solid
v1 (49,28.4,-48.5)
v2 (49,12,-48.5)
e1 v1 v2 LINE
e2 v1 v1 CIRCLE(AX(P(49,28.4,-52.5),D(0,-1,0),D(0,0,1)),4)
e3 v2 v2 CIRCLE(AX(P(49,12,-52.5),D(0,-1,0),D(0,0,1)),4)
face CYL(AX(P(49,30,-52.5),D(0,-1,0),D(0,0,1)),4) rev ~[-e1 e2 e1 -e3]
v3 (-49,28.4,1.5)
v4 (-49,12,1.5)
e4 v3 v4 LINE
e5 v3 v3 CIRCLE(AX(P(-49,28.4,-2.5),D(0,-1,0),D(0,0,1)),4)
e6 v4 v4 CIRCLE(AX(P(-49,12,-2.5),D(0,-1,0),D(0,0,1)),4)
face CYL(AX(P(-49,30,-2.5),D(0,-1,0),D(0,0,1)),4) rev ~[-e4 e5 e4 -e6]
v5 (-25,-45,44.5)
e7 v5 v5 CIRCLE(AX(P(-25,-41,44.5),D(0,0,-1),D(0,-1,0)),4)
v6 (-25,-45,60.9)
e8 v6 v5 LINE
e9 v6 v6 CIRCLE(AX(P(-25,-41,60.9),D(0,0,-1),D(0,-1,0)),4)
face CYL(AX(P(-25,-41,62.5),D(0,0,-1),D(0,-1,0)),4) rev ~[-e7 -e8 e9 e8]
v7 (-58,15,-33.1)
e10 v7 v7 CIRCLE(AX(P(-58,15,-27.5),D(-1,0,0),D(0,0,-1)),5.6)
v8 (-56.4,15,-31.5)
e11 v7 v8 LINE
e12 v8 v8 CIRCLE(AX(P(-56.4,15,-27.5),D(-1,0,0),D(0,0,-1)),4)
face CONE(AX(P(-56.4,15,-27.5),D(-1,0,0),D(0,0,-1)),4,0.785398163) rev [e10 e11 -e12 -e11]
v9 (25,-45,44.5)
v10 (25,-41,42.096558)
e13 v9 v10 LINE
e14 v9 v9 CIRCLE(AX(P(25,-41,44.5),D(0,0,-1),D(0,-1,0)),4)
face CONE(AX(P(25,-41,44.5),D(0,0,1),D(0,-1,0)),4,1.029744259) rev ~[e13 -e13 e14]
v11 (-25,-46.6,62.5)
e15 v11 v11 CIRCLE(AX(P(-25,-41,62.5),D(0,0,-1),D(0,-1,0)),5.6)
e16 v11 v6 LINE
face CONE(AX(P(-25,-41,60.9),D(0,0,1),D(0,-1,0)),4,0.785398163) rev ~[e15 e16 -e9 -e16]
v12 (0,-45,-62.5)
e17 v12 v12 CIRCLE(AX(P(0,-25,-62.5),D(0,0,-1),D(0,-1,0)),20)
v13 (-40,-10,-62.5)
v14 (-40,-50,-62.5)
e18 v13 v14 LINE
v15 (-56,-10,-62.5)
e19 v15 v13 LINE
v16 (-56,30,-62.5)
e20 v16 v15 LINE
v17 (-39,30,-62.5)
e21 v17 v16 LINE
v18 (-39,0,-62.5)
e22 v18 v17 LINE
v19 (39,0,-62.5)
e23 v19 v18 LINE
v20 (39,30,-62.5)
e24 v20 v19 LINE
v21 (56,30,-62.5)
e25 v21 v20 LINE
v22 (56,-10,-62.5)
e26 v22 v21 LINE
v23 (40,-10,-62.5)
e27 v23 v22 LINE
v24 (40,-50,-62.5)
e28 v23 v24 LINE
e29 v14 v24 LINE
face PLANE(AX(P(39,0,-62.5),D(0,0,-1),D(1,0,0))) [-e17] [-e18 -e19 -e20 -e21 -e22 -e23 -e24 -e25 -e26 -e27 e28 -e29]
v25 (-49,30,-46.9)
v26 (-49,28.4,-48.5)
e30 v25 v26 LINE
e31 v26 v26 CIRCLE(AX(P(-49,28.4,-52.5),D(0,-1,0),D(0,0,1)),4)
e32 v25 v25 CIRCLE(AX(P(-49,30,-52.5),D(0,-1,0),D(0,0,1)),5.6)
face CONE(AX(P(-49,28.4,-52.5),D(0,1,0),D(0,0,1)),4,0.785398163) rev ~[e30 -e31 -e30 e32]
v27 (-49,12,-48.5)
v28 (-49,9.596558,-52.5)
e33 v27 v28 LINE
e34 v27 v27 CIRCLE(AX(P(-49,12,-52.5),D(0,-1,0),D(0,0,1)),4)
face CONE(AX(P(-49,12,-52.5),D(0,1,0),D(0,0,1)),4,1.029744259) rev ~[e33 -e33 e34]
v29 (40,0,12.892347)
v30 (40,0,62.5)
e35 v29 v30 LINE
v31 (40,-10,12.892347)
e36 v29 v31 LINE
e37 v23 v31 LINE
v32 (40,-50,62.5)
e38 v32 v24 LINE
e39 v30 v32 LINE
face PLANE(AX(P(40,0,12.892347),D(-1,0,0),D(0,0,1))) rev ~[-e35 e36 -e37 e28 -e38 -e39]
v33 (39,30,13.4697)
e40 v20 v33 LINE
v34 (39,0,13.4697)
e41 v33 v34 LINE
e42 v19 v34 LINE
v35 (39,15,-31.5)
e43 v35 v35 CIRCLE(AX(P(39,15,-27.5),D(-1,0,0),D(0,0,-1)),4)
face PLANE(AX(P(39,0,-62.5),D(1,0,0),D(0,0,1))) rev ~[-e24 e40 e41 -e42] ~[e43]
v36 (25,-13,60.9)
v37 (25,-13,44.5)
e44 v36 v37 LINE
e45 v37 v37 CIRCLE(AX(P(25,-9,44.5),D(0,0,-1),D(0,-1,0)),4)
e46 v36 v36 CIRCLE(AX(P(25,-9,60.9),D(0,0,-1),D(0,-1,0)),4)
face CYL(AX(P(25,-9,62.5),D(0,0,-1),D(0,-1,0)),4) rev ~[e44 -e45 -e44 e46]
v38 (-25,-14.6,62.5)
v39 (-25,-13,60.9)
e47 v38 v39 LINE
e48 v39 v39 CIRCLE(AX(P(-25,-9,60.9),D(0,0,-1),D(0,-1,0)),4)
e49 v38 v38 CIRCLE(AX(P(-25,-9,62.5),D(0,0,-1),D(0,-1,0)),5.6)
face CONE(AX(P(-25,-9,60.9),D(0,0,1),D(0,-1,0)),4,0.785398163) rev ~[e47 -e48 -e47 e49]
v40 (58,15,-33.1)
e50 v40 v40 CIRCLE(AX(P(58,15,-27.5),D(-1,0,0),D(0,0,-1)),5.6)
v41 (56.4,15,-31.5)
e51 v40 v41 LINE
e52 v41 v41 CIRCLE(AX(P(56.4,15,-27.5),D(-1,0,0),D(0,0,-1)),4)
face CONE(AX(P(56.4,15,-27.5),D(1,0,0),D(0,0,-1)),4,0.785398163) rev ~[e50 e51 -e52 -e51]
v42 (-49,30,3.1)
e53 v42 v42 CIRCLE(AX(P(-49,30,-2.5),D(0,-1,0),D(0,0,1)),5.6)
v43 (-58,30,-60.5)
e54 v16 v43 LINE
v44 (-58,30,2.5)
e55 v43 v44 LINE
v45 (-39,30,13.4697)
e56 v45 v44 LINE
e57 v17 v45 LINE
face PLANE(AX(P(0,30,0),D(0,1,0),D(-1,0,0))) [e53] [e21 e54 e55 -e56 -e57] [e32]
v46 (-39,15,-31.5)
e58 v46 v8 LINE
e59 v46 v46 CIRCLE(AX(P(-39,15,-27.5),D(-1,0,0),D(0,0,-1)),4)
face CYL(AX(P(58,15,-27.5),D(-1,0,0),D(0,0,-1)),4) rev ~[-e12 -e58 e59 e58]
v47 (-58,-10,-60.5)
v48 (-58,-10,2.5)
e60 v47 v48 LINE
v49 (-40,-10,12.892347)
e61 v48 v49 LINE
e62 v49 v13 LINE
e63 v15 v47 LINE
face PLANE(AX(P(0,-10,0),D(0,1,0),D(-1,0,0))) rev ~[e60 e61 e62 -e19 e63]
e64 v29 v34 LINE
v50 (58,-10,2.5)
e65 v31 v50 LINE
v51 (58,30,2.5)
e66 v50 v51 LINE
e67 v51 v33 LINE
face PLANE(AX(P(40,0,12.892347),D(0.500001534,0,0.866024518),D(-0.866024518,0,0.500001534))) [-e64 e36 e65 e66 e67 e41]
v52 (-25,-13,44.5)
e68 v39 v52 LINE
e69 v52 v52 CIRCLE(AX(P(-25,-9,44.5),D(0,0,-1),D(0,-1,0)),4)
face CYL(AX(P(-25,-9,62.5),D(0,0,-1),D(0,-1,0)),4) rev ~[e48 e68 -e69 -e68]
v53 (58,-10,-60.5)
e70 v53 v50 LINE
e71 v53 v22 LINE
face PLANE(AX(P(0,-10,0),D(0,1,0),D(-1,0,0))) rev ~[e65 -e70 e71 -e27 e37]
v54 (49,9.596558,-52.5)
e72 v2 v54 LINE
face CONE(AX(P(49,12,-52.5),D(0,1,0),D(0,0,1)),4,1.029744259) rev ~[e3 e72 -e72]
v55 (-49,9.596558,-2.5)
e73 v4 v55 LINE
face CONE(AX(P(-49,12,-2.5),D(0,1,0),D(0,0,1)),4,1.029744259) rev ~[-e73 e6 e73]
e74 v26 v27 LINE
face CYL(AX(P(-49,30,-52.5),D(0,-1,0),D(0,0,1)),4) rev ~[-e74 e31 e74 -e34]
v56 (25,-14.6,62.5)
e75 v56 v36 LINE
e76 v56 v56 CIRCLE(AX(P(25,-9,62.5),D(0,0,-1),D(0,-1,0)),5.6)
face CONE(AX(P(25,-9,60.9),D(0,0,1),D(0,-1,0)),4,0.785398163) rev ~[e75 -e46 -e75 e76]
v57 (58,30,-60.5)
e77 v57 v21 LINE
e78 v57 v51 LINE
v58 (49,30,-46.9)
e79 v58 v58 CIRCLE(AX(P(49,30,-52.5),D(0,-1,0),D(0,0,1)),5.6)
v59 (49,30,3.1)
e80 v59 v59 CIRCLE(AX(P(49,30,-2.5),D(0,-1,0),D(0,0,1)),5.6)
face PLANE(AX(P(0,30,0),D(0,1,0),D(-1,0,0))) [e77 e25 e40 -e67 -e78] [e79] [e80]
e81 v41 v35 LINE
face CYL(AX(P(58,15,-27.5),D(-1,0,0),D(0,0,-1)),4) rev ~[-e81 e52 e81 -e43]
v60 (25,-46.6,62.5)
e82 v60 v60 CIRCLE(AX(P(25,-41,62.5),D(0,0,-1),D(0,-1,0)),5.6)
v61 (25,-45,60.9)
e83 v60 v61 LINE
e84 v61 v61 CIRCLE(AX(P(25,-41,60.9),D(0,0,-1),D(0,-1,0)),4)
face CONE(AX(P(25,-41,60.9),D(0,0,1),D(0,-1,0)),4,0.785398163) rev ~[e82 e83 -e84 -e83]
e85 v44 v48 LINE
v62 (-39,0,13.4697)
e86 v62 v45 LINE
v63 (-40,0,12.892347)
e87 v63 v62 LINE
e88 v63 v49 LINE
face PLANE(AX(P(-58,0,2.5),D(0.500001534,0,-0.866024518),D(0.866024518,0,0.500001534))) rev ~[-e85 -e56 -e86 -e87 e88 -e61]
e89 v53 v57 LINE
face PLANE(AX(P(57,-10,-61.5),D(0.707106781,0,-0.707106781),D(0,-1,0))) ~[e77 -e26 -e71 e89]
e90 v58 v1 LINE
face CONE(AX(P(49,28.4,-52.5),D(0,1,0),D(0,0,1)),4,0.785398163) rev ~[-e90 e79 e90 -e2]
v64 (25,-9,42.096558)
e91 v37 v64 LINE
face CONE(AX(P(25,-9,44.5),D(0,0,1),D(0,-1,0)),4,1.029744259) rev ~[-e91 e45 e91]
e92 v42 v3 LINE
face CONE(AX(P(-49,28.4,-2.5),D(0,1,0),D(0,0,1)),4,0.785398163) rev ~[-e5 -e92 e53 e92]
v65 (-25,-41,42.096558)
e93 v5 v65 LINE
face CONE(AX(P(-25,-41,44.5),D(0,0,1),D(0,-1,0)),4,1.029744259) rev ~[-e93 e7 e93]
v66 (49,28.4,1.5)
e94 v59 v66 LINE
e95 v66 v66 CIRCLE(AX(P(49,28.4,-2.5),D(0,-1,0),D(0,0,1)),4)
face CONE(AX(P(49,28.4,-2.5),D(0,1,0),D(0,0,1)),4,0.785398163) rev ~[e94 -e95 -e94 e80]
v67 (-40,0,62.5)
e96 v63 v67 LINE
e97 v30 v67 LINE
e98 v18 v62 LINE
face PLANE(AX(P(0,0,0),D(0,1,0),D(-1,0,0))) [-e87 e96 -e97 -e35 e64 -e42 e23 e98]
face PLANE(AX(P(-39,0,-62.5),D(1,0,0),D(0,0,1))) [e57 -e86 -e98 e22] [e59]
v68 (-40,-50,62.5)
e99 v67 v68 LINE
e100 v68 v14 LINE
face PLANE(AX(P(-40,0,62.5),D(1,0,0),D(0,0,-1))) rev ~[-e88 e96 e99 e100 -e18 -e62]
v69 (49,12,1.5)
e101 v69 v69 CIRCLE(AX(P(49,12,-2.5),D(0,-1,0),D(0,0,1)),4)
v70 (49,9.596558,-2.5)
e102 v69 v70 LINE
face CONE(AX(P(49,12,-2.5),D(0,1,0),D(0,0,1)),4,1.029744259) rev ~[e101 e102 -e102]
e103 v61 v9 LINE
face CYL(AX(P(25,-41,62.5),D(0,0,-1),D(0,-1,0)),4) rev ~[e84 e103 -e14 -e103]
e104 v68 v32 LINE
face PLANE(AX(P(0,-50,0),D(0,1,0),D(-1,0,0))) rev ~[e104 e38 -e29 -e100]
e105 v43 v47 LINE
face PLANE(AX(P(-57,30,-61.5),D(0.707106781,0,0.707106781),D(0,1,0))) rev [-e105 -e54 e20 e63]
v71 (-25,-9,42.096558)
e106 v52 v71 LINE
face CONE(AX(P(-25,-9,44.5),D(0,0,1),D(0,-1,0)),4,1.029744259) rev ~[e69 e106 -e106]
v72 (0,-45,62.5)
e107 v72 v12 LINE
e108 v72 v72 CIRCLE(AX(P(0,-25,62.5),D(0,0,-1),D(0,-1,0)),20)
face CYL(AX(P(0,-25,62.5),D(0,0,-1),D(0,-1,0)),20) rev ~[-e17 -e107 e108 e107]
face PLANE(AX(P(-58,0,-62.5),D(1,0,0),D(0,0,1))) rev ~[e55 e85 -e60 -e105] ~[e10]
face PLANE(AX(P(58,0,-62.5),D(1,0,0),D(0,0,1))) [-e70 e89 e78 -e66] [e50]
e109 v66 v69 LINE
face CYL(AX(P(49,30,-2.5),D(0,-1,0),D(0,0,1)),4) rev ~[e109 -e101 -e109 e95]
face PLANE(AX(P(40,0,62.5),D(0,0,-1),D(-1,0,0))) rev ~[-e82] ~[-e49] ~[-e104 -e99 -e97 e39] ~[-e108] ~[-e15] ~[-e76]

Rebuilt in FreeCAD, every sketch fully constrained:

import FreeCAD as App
import Part
import Sketcher
Q = App.Units.Quantity


def edges_at(feature, points):
    """Names of the edges that pass closest to the given points."""
    edges = feature.Shape.Edges
    near = lambda p: min(range(len(edges)), key=lambda i: edges[i].distToShape(Part.Vertex(*p))[0])
    return sorted({f"Edge{near(p) + 1}" for p in points})


def add_polygon(sketch, points):
    """Adds a closed chain of lines whose ends are joined by coincident constraints."""
    first, n = sketch.GeometryCount, len(points)
    for a, b in zip(points, points[1:] + points[:1]):
        sketch.addGeometry(Part.LineSegment(App.Vector(*a, 0), App.Vector(*b, 0)), False)
    for i in range(n):
        sketch.addConstraint(Sketcher.Constraint("Coincident", first + i, 2, first + (i + 1) % n, 1))

doc = App.newDocument("Part")
body = doc.addObject("PartDesign::Body", "Body")
body.AllowCompound = True

# Sketch on XZ plane
sketch1 = body.newObject("Sketcher::SketchObject", "Sketch")
sketch1.AttachmentSupport = (doc.getObject("XZ_Plane"), [""])
sketch1.MapMode = "FlatFace"
add_polygon(sketch1, [(39, 13), (58, 2), (58, -62), (39, -62)])  # lines 0-3
add_polygon(sketch1, [(-58, 2), (-39, 13), (-39, -62), (-58, -62)])  # lines 4-7
sketch1.addConstraint(Sketcher.Constraint("Vertical", 1))
sketch1.addConstraint(Sketcher.Constraint("Horizontal", 2))
sketch1.addConstraint(Sketcher.Constraint("Vertical", 3))
sketch1.addConstraint(Sketcher.Constraint("Vertical", 5))
sketch1.addConstraint(Sketcher.Constraint("Horizontal", 6))
sketch1.addConstraint(Sketcher.Constraint("Vertical", 7))
sketch1.addConstraint(Sketcher.Constraint("Symmetric", 3, 2, 4, 2, -2))
sketch1.addConstraint(Sketcher.Constraint("Symmetric", 1, 2, 6, 2, -2))
sketch1.addConstraint(Sketcher.Constraint("Horizontal", 0, 2, 7, 2))
sketch1.addConstraint(Sketcher.Constraint("DistanceX", 2, 2, 2, 1, Q("19 mm")))
sketch1.addConstraint(Sketcher.Constraint("DistanceY", 1, 2, 1, 1, Q("65 mm")))
sketch1.addConstraint(Sketcher.Constraint("DistanceX", -1, 1, 0, 2, Q("58 mm")))
sketch1.addConstraint(Sketcher.Constraint("Angle", 0, Q("-30 deg")))
sketch1.addConstraint(Sketcher.Constraint("DistanceY", -1, 1, 0, 2, Q("2.5 mm")))
pad1 = body.newObject("PartDesign::Pad", "Pad")
pad1.Profile = sketch1
pad1.Type = "TwoLengths"
pad1.Length = 30
pad1.Length2 = 10
pad1.Reversed = True

# Sketch on XZ plane
sketch2 = body.newObject("Sketcher::SketchObject", "Sketch001")
sketch2.AttachmentSupport = (doc.getObject("XZ_Plane"), [""])
sketch2.MapMode = "FlatFace"
add_polygon(sketch2, [(40, 62), (40, -62), (-40, -62), (-40, 62)])  # lines 0-3
sketch2.addConstraint(Sketcher.Constraint("Vertical", 0))
sketch2.addConstraint(Sketcher.Constraint("Horizontal", 1))
sketch2.addConstraint(Sketcher.Constraint("Vertical", 2))
sketch2.addConstraint(Sketcher.Constraint("Horizontal", 3))
sketch2.addConstraint(Sketcher.Constraint("Symmetric", 0, 2, 2, 2, -1, 1))
sketch2.addConstraint(Sketcher.Constraint("DistanceX", 1, 2, 1, 1, Q("80 mm")))
sketch2.addConstraint(Sketcher.Constraint("DistanceY", 0, 2, 0, 1, Q("125 mm")))
pad2 = body.newObject("PartDesign::Pad", "Pad001")
pad2.Profile = sketch2
pad2.Length = 50

# Sketch on XZ plane
sketch3 = body.newObject("Sketcher::SketchObject", "Sketch002")
sketch3.AttachmentSupport = (doc.getObject("XZ_Plane"), [""])
sketch3.MapMode = "FlatFace"
sketch3.AttachmentOffset = App.Placement(App.Vector(0, 0, -30), App.Rotation())
sketch3.addGeometry(Part.Circle(App.Vector(49, -2.5, 0), App.Vector(0, 0, 1), 4), False)
sketch3.addGeometry(Part.Circle(App.Vector(49, -52.5, 0), App.Vector(0, 0, 1), 4), False)
sketch3.addConstraint(Sketcher.Constraint("Equal", 0, 1))
sketch3.addConstraint(Sketcher.Constraint("Vertical", 0, 3, 1, 3))
sketch3.addConstraint(Sketcher.Constraint("Diameter", 0, Q("8 mm")))
sketch3.addConstraint(Sketcher.Constraint("DistanceX", -1, 1, 0, 3, Q("49 mm")))
sketch3.addConstraint(Sketcher.Constraint("DistanceY", 1, 3, 0, 3, Q("50 mm")))
sketch3.addConstraint(Sketcher.Constraint("DistanceY", 0, 3, -1, 1, Q("2.5 mm")))
doc.recompute()
hole = body.newObject("PartDesign::Hole", "Hole")
hole.Profile = sketch3
hole.ThreadType = "None"
hole.Diameter = 8
hole.DepthType = "Dimension"
hole.Depth = 18
hole.DrillPoint = "Angled"
hole.DrillPointAngle = 118
hole.Reversed = True

# Sketch on XZ plane
sketch4 = body.newObject("Sketcher::SketchObject", "Sketch003")
sketch4.AttachmentSupport = (doc.getObject("XZ_Plane"), [""])
sketch4.MapMode = "FlatFace"
sketch4.AttachmentOffset = App.Placement(App.Vector(0, 0, -30), App.Rotation())
sketch4.addGeometry(Part.Circle(App.Vector(-49, -52.5, 0), App.Vector(0, 0, 1), 4), False)
sketch4.addGeometry(Part.Circle(App.Vector(-49, -2.5, 0), App.Vector(0, 0, 1), 4), False)
sketch4.addConstraint(Sketcher.Constraint("Equal", 0, 1))
sketch4.addConstraint(Sketcher.Constraint("Vertical", 0, 3, 1, 3))
sketch4.addConstraint(Sketcher.Constraint("Diameter", 0, Q("8 mm")))
sketch4.addConstraint(Sketcher.Constraint("DistanceX", 0, 3, -1, 1, Q("49 mm")))
sketch4.addConstraint(Sketcher.Constraint("DistanceY", 0, 3, 1, 3, Q("50 mm")))
sketch4.addConstraint(Sketcher.Constraint("DistanceY", 0, 3, -1, 1, Q("52.5 mm")))
doc.recompute()
hole2 = body.newObject("PartDesign::Hole", "Hole001")
hole2.Profile = sketch4
hole2.ThreadType = "None"
hole2.Diameter = 8
hole2.DepthType = "Dimension"
hole2.Depth = 18
hole2.DrillPoint = "Angled"
hole2.DrillPointAngle = 118
hole2.Reversed = True

# Sketch on XY plane
sketch5 = body.newObject("Sketcher::SketchObject", "Sketch004")
sketch5.AttachmentSupport = (doc.getObject("XY_Plane"), [""])
sketch5.MapMode = "FlatFace"
sketch5.AttachmentOffset = App.Placement(App.Vector(0, 0, 62.5), App.Rotation())
sketch5.addGeometry(Part.Circle(App.Vector(0, -25, 0), App.Vector(0, 0, 1), 20), False)
sketch5.addConstraint(Sketcher.Constraint("PointOnObject", 0, 3, -2))
sketch5.addConstraint(Sketcher.Constraint("Diameter", 0, Q("40 mm")))
sketch5.addConstraint(Sketcher.Constraint("DistanceY", 0, 3, -1, 1, Q("25 mm")))
doc.recompute()
hole3 = body.newObject("PartDesign::Hole", "Hole002")
hole3.Profile = sketch5
hole3.ThreadType = "None"
hole3.Diameter = 40
hole3.DepthType = "ThroughAll"

# Sketch on XY plane
sketch6 = body.newObject("Sketcher::SketchObject", "Sketch005")
sketch6.AttachmentSupport = (doc.getObject("XY_Plane"), [""])
sketch6.MapMode = "FlatFace"
sketch6.AttachmentOffset = App.Placement(App.Vector(0, 0, 62.5), App.Rotation())
sketch6.addGeometry(Part.Circle(App.Vector(25, -41, 0), App.Vector(0, 0, 1), 4), False)
sketch6.addGeometry(Part.Circle(App.Vector(-25, -41, 0), App.Vector(0, 0, 1), 4), False)
sketch6.addGeometry(Part.Circle(App.Vector(-25, -9, 0), App.Vector(0, 0, 1), 4), False)
sketch6.addGeometry(Part.Circle(App.Vector(25, -9, 0), App.Vector(0, 0, 1), 4), False)
sketch6.addConstraint(Sketcher.Constraint("Equal", 0, 1))
sketch6.addConstraint(Sketcher.Constraint("Equal", 1, 2))
sketch6.addConstraint(Sketcher.Constraint("Equal", 2, 3))
sketch6.addConstraint(Sketcher.Constraint("Symmetric", 0, 3, 1, 3, -2))
sketch6.addConstraint(Sketcher.Constraint("Symmetric", 2, 3, 3, 3, -2))
sketch6.addConstraint(Sketcher.Constraint("Vertical", 1, 3, 2, 3))
sketch6.addConstraint(Sketcher.Constraint("Diameter", 0, Q("8 mm")))
sketch6.addConstraint(Sketcher.Constraint("DistanceX", -1, 1, 0, 3, Q("25 mm")))
sketch6.addConstraint(Sketcher.Constraint("DistanceY", 0, 3, -1, 1, Q("41 mm")))
sketch6.addConstraint(Sketcher.Constraint("DistanceY", 2, 3, -1, 1, Q("9 mm")))
doc.recompute()
hole4 = body.newObject("PartDesign::Hole", "Hole003")
hole4.Profile = sketch6
hole4.ThreadType = "None"
hole4.Diameter = 8
hole4.DepthType = "Dimension"
hole4.Depth = 18
hole4.DrillPoint = "Angled"
hole4.DrillPointAngle = 118

# Sketch on YZ plane
sketch7 = body.newObject("Sketcher::SketchObject", "Sketch006")
sketch7.AttachmentSupport = (doc.getObject("YZ_Plane"), [""])
sketch7.MapMode = "FlatFace"
sketch7.AttachmentOffset = App.Placement(App.Vector(0, 0, 58), App.Rotation())
sketch7.addGeometry(Part.Circle(App.Vector(15, -27.5, 0), App.Vector(0, 0, 1), 4), False)
sketch7.addConstraint(Sketcher.Constraint("Diameter", 0, Q("8 mm")))
sketch7.addConstraint(Sketcher.Constraint("DistanceX", -1, 1, 0, 3, Q("15 mm")))
sketch7.addConstraint(Sketcher.Constraint("DistanceY", 0, 3, -1, 1, Q("27.5 mm")))
doc.recompute()
hole5 = body.newObject("PartDesign::Hole", "Hole004")
hole5.Profile = sketch7
hole5.ThreadType = "None"
hole5.Diameter = 8
hole5.DepthType = "Dimension"
hole5.Depth = 116
hole5.DrillPoint = "Flat"
doc.recompute()

chamfer = body.newObject("PartDesign::Chamfer", "Chamfer")
chamfer.Base = (hole5, edges_at(hole5, [(-58, 15, -23.5)]))
chamfer.Size = 1.6
doc.recompute()

chamfer2 = body.newObject("PartDesign::Chamfer", "Chamfer001")
chamfer2.Base = (chamfer, edges_at(chamfer, [(58, 15, -23.5)]))
chamfer2.Size = 1.6
doc.recompute()

chamfer3 = body.newObject("PartDesign::Chamfer", "Chamfer002")
chamfer3.Base = (chamfer2, edges_at(chamfer2, [
    (-25, -37, 62.5),
    (25, -37, 62.5),
    (-25, -5, 62.5),
    (25, -5, 62.5),
]))
chamfer3.Size = 1.6
doc.recompute()

chamfer4 = body.newObject("PartDesign::Chamfer", "Chamfer003")
chamfer4.Base = (chamfer3, edges_at(chamfer3, [
    (49, 30, -56.5),
    (49, 30, -6.5),
    (-49, 30, -56.5),
    (-49, 30, -6.5),
]))
chamfer4.Size = 1.6
doc.recompute()

chamfer5 = body.newObject("PartDesign::Chamfer", "Chamfer004")
chamfer5.Base = (chamfer4, edges_at(chamfer4, [(58, 10, -62.5), (-58, 10, -62.5)]))
chamfer5.Size = 2

doc.recompute()
